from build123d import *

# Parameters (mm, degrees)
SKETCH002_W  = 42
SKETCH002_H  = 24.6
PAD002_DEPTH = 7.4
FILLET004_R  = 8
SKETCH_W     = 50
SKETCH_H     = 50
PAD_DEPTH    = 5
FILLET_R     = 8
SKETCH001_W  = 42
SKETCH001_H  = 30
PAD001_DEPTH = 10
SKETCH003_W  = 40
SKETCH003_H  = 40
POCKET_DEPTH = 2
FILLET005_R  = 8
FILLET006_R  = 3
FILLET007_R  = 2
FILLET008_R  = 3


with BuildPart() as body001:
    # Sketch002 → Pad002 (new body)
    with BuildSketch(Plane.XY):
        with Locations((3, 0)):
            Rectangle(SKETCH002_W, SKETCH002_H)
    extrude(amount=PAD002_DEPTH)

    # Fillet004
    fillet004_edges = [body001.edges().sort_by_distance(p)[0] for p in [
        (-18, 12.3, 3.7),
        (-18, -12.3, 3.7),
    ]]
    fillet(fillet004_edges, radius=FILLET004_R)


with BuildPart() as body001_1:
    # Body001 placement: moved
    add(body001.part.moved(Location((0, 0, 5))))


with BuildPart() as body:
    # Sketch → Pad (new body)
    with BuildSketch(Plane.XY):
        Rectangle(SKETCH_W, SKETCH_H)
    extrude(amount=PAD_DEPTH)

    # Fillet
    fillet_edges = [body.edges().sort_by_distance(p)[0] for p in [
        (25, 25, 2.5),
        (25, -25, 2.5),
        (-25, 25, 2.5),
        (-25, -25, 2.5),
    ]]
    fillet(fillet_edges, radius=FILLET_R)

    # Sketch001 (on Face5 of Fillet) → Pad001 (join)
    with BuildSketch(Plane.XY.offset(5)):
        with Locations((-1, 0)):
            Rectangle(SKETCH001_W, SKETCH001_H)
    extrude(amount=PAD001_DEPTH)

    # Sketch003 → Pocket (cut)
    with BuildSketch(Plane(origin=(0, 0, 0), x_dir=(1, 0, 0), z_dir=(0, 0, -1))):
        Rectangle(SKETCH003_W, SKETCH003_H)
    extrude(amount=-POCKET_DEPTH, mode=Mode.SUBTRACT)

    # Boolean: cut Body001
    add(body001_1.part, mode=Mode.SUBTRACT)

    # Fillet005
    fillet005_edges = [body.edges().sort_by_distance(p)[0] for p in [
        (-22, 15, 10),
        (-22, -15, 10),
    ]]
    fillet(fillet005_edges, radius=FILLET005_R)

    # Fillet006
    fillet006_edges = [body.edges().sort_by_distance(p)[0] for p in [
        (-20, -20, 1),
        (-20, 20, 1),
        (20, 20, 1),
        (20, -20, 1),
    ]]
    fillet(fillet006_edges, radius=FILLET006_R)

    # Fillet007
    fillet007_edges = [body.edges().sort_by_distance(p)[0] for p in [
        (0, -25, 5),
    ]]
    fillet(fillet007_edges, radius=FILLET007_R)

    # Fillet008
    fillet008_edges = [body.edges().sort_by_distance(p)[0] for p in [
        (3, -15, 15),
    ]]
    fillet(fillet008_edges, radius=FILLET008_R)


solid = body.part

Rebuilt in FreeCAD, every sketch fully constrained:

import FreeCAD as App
import Part
import Sketcher
from FreeCAD import Vector


def edges_at(feature, points):
    """Names of the edges that pass closest to the given points."""
    edges = feature.Shape.Edges
    near = lambda p: min(range(len(edges)), key=lambda i: edges[i].distToShape(Part.Vertex(*p))[0])
    return sorted({f"Edge{near(p) + 1}" for p in points})


def add_polygon(sketch, points):
    """Adds a closed chain of lines whose ends are joined by coincident constraints."""
    first, n = sketch.GeometryCount, len(points)
    for a, b in zip(points, points[1:] + points[:1]):
        sketch.addGeometry(Part.LineSegment(App.Vector(*a, 0), App.Vector(*b, 0)), False)
    for i in range(n):
        sketch.addConstraint(Sketcher.Constraint("Coincident", first + i, 2, first + (i + 1) % n, 1))

doc = App.newDocument("Part")
body = doc.addObject("PartDesign::Body", "Body")

# Sketch on XY plane
sketch1 = body.newObject("Sketcher::SketchObject", "Sketch")
sketch1.AttachmentSupport = (doc.getObject("XY_Plane"), [""])
sketch1.MapMode = "FlatFace"
add_polygon(sketch1, [(-18, 12.3), (-18, -12.3), (24, -12.3), (24, 12.3)])  # lines 0-3
sketch1.addConstraint([
    Sketcher.Constraint("Vertical", 0),
    Sketcher.Constraint("Horizontal", 1),
    Sketcher.Constraint("Vertical", 2),
    Sketcher.Constraint("Horizontal", 3),
    Sketcher.Constraint("DistanceX", 1, 1, 1, 2, 42.0),
    Sketcher.Constraint("DistanceY", 0, 2, 0, 1, 24.6),
    Sketcher.Constraint("DistanceX", 0, 2, -1, 1, 18.0),
    Sketcher.Constraint("DistanceY", 0, 2, -1, 1, 12.3),
])
pad1 = body.newObject("PartDesign::Pad", "Pad")
pad1.Profile = sketch1
pad1.Length = 7.4
doc.recompute()

fillet = body.newObject("PartDesign::Fillet", "Fillet")
fillet.Base = (pad1, edges_at(pad1, [(-18, 12.3, 3.7), (-18, -12.3, 3.7)]))
fillet.Radius = 8
body2 = doc.addObject("PartDesign::Body", "Body001")
doc.recompute()

body.Placement = App.Placement(Vector(0, 0, 5), App.Rotation(Vector(0, 0, 1), 0))
boolean = body2.newObject("PartDesign::Boolean", "Boolean")
boolean.Type = "Fuse"
boolean.addObjects([body])
body3 = doc.addObject("PartDesign::Body", "Body002")

# Sketch on XY plane
sketch2 = body3.newObject("Sketcher::SketchObject", "Sketch001")
sketch2.AttachmentSupport = (doc.getObject("XY_Plane002"), [""])
sketch2.MapMode = "FlatFace"
add_polygon(sketch2, [(-25, 25), (-25, -25), (25, -25), (25, 25)])  # lines 0-3
sketch2.addConstraint([
    Sketcher.Constraint("Vertical", 0),
    Sketcher.Constraint("Horizontal", 1),
    Sketcher.Constraint("Vertical", 2),
    Sketcher.Constraint("Horizontal", 3),
    Sketcher.Constraint("Symmetric", 0, 2, 2, 2, -1, 1),
    Sketcher.Constraint("Equal", 3, 0),
    Sketcher.Constraint("DistanceX", 1, 1, 1, 2, 50.0),
])
pad2 = body3.newObject("PartDesign::Pad", "Pad001")
pad2.Profile = sketch2
pad2.Length = 5
doc.recompute()

fillet2 = body3.newObject("PartDesign::Fillet", "Fillet001")
fillet2.Base = (pad2, edges_at(pad2, [
    (25, 25, 2.5),
    (25, -25, 2.5),
    (-25, 25, 2.5),
    (-25, -25, 2.5),
]))
fillet2.Radius = 8

# Sketch on XY plane
sketch3 = body3.newObject("Sketcher::SketchObject", "Sketch002")
sketch3.AttachmentSupport = (doc.getObject("XY_Plane002"), [""])
sketch3.MapMode = "FlatFace"
sketch3.AttachmentOffset = App.Placement(Vector(0, 0, 5), App.Rotation())
add_polygon(sketch3, [(-22, 15), (-22, -15), (20, -15), (20, 15)])  # lines 0-3
sketch3.addConstraint([
    Sketcher.Constraint("Vertical", 0),
    Sketcher.Constraint("Horizontal", 1),
    Sketcher.Constraint("Vertical", 2),
    Sketcher.Constraint("Horizontal", 3),
    Sketcher.Constraint("DistanceX", 1, 1, 1, 2, 42.0),
    Sketcher.Constraint("DistanceY", 0, 2, 0, 1, 30.0),
    Sketcher.Constraint("DistanceX", 0, 2, -1, 1, 22.0),
    Sketcher.Constraint("DistanceY", 0, 2, -1, 1, 15.0),
])
pad3 = body3.newObject("PartDesign::Pad", "Pad002")
pad3.Profile = sketch3
pad3.Length = 10

# Sketch on XY plane
sketch4 = body3.newObject("Sketcher::SketchObject", "Sketch003")
sketch4.AttachmentSupport = (doc.getObject("XY_Plane002"), [""])
sketch4.MapMode = "FlatFace"
add_polygon(sketch4, [(-20, -20), (-20, 20), (20, 20), (20, -20)])  # lines 0-3
sketch4.addConstraint([
    Sketcher.Constraint("Vertical", 0),
    Sketcher.Constraint("Horizontal", 1),
    Sketcher.Constraint("Vertical", 2),
    Sketcher.Constraint("Horizontal", 3),
    Sketcher.Constraint("Symmetric", 0, 2, 2, 2, -1, 1),
    Sketcher.Constraint("Equal", 3, 0),
    Sketcher.Constraint("DistanceX", 1, 1, 1, 2, 40.0),
])
pocket1 = body3.newObject("PartDesign::Pocket", "Pocket")
pocket1.Profile = sketch4
pocket1.Length = 2
pocket1.Reversed = True
doc.recompute()

boolean2 = body3.newObject("PartDesign::Boolean", "Boolean001")
boolean2.Type = "Cut"
boolean2.addObjects([body2])
doc.recompute()

fillet3 = body3.newObject("PartDesign::Fillet", "Fillet002")
fillet3.Base = (boolean2, edges_at(boolean2, [(-22, 15, 10), (-22, -15, 10)]))
fillet3.Radius = 8
doc.recompute()

fillet4 = body3.newObject("PartDesign::Fillet", "Fillet003")
fillet4.Base = (fillet3, edges_at(fillet3, [
    (-20, -20, 1),
    (-20, 20, 1),
    (20, 20, 1),
    (20, -20, 1),
]))
fillet4.Radius = 3
doc.recompute()

fillet5 = body3.newObject("PartDesign::Fillet", "Fillet004")
fillet5.Base = (fillet4, edges_at(fillet4, [(0, -25, 5)]))
fillet5.Radius = 2
doc.recompute()

fillet6 = body3.newObject("PartDesign::Fillet", "Fillet005")
fillet6.Base = (fillet5, edges_at(fillet5, [(3, -15, 15)]))
fillet6.Radius = 3

doc.recompute()
